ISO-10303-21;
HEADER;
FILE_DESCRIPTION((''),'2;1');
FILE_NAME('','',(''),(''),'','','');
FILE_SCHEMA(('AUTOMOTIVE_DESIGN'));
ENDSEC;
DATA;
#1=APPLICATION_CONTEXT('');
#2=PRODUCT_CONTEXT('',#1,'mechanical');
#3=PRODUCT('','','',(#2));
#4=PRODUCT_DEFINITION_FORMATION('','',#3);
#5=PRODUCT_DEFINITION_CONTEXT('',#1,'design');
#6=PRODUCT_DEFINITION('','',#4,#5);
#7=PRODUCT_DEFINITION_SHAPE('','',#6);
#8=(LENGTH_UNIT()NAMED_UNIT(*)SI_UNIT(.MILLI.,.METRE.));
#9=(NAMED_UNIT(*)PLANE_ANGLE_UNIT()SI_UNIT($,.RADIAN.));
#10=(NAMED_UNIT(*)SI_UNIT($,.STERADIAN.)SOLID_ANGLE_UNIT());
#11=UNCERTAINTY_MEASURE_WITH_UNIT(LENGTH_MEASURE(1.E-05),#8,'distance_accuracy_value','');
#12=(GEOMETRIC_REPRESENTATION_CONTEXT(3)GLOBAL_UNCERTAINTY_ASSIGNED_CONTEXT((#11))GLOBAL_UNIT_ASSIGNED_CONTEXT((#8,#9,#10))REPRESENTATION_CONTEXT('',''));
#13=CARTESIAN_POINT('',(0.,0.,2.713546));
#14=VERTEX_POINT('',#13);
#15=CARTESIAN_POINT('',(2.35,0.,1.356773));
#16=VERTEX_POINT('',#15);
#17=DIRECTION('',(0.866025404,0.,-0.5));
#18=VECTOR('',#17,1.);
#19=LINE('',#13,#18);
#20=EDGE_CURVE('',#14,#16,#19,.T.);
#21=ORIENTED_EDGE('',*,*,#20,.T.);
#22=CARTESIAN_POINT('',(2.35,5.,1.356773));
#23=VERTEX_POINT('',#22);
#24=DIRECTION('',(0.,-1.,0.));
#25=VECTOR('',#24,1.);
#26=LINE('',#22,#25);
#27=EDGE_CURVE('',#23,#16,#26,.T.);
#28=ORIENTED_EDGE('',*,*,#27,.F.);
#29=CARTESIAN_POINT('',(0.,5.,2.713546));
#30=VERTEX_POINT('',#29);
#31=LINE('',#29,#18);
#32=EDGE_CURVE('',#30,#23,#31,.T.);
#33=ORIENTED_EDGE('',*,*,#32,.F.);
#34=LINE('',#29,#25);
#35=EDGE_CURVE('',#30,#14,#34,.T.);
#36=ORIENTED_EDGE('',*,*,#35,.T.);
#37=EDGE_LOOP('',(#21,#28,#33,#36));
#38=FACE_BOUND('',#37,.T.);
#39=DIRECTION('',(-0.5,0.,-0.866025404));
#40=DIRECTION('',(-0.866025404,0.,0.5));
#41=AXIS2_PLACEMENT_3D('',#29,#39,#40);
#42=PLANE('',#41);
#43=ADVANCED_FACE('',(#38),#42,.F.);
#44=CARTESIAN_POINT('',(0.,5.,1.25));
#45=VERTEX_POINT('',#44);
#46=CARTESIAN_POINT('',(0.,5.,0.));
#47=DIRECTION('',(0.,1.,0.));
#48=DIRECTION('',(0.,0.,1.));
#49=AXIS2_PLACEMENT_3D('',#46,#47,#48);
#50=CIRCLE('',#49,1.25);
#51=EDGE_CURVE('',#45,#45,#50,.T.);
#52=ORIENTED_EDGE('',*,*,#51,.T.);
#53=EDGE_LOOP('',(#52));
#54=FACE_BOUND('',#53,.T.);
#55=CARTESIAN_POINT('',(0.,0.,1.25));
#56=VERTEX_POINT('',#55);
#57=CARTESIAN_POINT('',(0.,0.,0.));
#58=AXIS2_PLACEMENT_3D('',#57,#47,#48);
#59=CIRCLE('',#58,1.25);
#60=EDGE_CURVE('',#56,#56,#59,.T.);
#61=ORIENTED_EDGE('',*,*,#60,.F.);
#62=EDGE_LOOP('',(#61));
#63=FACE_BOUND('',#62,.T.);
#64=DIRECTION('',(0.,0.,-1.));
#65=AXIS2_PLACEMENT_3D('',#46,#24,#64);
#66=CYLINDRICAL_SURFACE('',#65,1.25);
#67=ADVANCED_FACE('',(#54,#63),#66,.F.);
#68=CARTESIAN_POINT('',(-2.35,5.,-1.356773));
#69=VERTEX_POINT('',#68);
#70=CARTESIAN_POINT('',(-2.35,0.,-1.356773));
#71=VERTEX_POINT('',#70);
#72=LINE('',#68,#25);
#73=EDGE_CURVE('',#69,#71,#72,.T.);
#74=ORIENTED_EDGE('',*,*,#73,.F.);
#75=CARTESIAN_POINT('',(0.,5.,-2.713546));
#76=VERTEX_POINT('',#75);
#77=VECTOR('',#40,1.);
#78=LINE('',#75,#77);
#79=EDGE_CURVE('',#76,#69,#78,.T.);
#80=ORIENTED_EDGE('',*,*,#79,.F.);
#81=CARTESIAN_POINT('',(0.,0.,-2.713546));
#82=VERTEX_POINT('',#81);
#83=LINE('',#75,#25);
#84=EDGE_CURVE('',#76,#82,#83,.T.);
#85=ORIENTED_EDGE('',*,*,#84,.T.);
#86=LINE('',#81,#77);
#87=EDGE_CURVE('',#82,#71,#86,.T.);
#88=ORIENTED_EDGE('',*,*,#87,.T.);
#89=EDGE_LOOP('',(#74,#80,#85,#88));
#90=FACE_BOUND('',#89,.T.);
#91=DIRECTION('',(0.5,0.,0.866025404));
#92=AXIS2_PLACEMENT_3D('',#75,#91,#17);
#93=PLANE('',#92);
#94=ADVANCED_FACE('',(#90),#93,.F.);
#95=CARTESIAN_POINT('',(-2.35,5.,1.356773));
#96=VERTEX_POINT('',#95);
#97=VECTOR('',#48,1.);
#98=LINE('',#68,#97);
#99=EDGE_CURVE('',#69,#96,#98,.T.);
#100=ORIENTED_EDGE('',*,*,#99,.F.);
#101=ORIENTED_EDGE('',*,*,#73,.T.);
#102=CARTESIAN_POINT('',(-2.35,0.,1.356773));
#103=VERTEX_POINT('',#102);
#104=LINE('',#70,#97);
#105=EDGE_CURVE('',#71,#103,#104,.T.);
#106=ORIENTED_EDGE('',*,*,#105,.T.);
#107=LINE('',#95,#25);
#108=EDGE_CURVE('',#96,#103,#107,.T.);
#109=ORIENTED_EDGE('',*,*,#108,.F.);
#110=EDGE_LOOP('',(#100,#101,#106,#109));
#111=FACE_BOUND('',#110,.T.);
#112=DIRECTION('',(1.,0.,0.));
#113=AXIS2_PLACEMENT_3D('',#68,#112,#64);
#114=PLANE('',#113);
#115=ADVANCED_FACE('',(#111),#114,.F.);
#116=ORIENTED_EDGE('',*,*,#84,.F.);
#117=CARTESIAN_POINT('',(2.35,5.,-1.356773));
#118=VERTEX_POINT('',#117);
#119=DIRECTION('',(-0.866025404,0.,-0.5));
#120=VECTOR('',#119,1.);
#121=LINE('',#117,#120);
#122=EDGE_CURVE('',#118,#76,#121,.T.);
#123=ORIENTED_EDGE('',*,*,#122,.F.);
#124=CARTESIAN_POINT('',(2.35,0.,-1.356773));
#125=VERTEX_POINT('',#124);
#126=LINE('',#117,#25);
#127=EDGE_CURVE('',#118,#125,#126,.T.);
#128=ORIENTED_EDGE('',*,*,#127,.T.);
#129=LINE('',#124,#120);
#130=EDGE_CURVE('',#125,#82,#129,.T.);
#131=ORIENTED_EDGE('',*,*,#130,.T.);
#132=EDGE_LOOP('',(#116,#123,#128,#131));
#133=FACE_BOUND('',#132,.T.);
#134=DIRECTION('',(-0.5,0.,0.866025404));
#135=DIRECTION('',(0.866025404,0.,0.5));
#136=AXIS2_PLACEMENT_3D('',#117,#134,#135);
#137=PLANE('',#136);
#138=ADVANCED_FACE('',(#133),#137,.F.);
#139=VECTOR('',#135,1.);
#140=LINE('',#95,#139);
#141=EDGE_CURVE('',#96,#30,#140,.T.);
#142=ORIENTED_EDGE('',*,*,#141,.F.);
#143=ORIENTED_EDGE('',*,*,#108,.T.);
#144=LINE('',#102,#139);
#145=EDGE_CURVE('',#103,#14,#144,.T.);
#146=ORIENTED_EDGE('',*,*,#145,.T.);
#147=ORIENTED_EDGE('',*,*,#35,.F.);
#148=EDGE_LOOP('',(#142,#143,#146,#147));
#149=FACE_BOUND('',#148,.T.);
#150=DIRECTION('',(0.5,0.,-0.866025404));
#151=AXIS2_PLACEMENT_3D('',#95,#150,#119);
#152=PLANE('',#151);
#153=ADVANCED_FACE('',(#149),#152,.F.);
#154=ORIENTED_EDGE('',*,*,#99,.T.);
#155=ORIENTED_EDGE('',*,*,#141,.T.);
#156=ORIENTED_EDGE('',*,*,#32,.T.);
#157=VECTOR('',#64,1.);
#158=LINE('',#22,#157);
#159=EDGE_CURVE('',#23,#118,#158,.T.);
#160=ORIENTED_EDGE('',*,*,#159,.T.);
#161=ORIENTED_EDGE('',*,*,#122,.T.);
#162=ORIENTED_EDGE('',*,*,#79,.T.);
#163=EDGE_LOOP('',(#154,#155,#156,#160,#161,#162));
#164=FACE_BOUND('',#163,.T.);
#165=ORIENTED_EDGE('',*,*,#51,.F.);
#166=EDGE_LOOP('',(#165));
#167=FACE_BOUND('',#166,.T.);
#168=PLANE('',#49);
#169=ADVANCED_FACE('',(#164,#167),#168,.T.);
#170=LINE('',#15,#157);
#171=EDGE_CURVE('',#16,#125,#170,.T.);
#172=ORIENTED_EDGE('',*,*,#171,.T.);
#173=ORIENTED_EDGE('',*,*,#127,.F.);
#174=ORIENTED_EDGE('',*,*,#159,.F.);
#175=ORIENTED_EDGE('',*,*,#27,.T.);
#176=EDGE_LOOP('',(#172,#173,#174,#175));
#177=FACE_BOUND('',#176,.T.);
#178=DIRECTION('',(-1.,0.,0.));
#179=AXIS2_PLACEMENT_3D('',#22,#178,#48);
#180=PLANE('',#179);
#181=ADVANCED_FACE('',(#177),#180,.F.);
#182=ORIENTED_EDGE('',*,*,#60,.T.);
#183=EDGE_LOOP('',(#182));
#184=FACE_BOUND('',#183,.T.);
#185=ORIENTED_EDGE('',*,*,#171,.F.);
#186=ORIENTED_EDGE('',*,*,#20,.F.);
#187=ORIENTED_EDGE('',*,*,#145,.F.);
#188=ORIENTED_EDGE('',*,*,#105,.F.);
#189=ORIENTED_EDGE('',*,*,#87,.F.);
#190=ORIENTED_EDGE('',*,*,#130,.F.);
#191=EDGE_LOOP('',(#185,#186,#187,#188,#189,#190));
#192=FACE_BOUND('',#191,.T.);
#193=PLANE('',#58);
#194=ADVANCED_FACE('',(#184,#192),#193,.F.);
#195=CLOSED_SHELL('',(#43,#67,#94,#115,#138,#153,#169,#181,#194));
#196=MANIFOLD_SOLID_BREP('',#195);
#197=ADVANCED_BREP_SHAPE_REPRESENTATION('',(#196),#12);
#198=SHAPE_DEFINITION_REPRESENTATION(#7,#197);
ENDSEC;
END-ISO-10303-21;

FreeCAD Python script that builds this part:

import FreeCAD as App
import Part
import Sketcher

V = App.Vector
Q = App.Units.Quantity


def add_polygon(sketch, points):
    """Adds a closed chain of lines whose ends are joined by coincident constraints."""
    first, n = sketch.GeometryCount, len(points)
    for a, b in zip(points, points[1:] + points[:1]):
        sketch.addGeometry(Part.LineSegment(App.Vector(*a, 0), App.Vector(*b, 0)), False)
    for i in range(n):
        sketch.addConstraint(Sketcher.Constraint("Coincident", first + i, 2, first + (i + 1) % n, 1))

doc = App.newDocument("Part")
params = doc.addObject("Spreadsheet::Sheet", "Params")
for row, (alias, value) in enumerate([
    ("sketch1_diameter", "2.5 mm"),
    ("pad1_length", "5 mm"),
], start=1):
    params.set(f"A{row}", alias)
    params.set(f"B{row}", "=" + value)
    params.setAlias(f"B{row}", alias)

body = doc.addObject("PartDesign::Body", "Body")

# Sketch on XZ plane
sketch1 = body.newObject("Sketcher::SketchObject", "Sketch")
sketch1.AttachmentSupport = (doc.getObject("XZ_Plane"), [""])
sketch1.MapMode = "FlatFace"
add_polygon(sketch1, [(0, -2.7), (-2.4, -1.4), (-2.4, 1.4), (0, 2.7), (2.4, 1.4), (2.4, -1.4)])  # lines 0-5
sketch1.addGeometry(Part.Circle(V(0, 0, 0), V(0, 0, 1), 1.2), False)  # 6
sketch1.addConstraint(Sketcher.Constraint("Vertical", 1))
sketch1.addConstraint(Sketcher.Constraint("Vertical", 4))
sketch1.addConstraint(Sketcher.Constraint("Coincident", 6, 3, -1, 1))
sketch1.addConstraint(Sketcher.Constraint("Symmetric", 0, 2, 3, 2, -1, 1))
sketch1.addConstraint(Sketcher.Constraint("Symmetric", 2, 2, 5, 2, -1, 1))
sketch1.addConstraint(Sketcher.Constraint("PointOnObject", 2, 2, -2))
sketch1.addConstraint(Sketcher.Constraint("Parallel", 2, 5))
sketch1.addConstraint(Sketcher.Constraint("Horizontal", 1, 2, 3, 2))
sketch1.addConstraint(Sketcher.Constraint("Diameter", 6, Q("2.5 mm")))
sketch1.addConstraint(Sketcher.Constraint("Angle", 0, Q("150 deg")))
sketch1.addConstraint(Sketcher.Constraint("DistanceX", 1, 2, 3, 2, Q("4.7 mm")))
sketch1.addConstraint(Sketcher.Constraint("DistanceY", 1, 1, 1, 2, Q("2.713546 mm")))
sketch1.setExpression("Constraints[14]", "Params.sketch1_diameter")
pad1 = body.newObject("PartDesign::Pad", "Pad")
pad1.Profile = sketch1
pad1.setExpression("Length", "Params.pad1_length")
pad1.Reversed = True

doc.recompute()
